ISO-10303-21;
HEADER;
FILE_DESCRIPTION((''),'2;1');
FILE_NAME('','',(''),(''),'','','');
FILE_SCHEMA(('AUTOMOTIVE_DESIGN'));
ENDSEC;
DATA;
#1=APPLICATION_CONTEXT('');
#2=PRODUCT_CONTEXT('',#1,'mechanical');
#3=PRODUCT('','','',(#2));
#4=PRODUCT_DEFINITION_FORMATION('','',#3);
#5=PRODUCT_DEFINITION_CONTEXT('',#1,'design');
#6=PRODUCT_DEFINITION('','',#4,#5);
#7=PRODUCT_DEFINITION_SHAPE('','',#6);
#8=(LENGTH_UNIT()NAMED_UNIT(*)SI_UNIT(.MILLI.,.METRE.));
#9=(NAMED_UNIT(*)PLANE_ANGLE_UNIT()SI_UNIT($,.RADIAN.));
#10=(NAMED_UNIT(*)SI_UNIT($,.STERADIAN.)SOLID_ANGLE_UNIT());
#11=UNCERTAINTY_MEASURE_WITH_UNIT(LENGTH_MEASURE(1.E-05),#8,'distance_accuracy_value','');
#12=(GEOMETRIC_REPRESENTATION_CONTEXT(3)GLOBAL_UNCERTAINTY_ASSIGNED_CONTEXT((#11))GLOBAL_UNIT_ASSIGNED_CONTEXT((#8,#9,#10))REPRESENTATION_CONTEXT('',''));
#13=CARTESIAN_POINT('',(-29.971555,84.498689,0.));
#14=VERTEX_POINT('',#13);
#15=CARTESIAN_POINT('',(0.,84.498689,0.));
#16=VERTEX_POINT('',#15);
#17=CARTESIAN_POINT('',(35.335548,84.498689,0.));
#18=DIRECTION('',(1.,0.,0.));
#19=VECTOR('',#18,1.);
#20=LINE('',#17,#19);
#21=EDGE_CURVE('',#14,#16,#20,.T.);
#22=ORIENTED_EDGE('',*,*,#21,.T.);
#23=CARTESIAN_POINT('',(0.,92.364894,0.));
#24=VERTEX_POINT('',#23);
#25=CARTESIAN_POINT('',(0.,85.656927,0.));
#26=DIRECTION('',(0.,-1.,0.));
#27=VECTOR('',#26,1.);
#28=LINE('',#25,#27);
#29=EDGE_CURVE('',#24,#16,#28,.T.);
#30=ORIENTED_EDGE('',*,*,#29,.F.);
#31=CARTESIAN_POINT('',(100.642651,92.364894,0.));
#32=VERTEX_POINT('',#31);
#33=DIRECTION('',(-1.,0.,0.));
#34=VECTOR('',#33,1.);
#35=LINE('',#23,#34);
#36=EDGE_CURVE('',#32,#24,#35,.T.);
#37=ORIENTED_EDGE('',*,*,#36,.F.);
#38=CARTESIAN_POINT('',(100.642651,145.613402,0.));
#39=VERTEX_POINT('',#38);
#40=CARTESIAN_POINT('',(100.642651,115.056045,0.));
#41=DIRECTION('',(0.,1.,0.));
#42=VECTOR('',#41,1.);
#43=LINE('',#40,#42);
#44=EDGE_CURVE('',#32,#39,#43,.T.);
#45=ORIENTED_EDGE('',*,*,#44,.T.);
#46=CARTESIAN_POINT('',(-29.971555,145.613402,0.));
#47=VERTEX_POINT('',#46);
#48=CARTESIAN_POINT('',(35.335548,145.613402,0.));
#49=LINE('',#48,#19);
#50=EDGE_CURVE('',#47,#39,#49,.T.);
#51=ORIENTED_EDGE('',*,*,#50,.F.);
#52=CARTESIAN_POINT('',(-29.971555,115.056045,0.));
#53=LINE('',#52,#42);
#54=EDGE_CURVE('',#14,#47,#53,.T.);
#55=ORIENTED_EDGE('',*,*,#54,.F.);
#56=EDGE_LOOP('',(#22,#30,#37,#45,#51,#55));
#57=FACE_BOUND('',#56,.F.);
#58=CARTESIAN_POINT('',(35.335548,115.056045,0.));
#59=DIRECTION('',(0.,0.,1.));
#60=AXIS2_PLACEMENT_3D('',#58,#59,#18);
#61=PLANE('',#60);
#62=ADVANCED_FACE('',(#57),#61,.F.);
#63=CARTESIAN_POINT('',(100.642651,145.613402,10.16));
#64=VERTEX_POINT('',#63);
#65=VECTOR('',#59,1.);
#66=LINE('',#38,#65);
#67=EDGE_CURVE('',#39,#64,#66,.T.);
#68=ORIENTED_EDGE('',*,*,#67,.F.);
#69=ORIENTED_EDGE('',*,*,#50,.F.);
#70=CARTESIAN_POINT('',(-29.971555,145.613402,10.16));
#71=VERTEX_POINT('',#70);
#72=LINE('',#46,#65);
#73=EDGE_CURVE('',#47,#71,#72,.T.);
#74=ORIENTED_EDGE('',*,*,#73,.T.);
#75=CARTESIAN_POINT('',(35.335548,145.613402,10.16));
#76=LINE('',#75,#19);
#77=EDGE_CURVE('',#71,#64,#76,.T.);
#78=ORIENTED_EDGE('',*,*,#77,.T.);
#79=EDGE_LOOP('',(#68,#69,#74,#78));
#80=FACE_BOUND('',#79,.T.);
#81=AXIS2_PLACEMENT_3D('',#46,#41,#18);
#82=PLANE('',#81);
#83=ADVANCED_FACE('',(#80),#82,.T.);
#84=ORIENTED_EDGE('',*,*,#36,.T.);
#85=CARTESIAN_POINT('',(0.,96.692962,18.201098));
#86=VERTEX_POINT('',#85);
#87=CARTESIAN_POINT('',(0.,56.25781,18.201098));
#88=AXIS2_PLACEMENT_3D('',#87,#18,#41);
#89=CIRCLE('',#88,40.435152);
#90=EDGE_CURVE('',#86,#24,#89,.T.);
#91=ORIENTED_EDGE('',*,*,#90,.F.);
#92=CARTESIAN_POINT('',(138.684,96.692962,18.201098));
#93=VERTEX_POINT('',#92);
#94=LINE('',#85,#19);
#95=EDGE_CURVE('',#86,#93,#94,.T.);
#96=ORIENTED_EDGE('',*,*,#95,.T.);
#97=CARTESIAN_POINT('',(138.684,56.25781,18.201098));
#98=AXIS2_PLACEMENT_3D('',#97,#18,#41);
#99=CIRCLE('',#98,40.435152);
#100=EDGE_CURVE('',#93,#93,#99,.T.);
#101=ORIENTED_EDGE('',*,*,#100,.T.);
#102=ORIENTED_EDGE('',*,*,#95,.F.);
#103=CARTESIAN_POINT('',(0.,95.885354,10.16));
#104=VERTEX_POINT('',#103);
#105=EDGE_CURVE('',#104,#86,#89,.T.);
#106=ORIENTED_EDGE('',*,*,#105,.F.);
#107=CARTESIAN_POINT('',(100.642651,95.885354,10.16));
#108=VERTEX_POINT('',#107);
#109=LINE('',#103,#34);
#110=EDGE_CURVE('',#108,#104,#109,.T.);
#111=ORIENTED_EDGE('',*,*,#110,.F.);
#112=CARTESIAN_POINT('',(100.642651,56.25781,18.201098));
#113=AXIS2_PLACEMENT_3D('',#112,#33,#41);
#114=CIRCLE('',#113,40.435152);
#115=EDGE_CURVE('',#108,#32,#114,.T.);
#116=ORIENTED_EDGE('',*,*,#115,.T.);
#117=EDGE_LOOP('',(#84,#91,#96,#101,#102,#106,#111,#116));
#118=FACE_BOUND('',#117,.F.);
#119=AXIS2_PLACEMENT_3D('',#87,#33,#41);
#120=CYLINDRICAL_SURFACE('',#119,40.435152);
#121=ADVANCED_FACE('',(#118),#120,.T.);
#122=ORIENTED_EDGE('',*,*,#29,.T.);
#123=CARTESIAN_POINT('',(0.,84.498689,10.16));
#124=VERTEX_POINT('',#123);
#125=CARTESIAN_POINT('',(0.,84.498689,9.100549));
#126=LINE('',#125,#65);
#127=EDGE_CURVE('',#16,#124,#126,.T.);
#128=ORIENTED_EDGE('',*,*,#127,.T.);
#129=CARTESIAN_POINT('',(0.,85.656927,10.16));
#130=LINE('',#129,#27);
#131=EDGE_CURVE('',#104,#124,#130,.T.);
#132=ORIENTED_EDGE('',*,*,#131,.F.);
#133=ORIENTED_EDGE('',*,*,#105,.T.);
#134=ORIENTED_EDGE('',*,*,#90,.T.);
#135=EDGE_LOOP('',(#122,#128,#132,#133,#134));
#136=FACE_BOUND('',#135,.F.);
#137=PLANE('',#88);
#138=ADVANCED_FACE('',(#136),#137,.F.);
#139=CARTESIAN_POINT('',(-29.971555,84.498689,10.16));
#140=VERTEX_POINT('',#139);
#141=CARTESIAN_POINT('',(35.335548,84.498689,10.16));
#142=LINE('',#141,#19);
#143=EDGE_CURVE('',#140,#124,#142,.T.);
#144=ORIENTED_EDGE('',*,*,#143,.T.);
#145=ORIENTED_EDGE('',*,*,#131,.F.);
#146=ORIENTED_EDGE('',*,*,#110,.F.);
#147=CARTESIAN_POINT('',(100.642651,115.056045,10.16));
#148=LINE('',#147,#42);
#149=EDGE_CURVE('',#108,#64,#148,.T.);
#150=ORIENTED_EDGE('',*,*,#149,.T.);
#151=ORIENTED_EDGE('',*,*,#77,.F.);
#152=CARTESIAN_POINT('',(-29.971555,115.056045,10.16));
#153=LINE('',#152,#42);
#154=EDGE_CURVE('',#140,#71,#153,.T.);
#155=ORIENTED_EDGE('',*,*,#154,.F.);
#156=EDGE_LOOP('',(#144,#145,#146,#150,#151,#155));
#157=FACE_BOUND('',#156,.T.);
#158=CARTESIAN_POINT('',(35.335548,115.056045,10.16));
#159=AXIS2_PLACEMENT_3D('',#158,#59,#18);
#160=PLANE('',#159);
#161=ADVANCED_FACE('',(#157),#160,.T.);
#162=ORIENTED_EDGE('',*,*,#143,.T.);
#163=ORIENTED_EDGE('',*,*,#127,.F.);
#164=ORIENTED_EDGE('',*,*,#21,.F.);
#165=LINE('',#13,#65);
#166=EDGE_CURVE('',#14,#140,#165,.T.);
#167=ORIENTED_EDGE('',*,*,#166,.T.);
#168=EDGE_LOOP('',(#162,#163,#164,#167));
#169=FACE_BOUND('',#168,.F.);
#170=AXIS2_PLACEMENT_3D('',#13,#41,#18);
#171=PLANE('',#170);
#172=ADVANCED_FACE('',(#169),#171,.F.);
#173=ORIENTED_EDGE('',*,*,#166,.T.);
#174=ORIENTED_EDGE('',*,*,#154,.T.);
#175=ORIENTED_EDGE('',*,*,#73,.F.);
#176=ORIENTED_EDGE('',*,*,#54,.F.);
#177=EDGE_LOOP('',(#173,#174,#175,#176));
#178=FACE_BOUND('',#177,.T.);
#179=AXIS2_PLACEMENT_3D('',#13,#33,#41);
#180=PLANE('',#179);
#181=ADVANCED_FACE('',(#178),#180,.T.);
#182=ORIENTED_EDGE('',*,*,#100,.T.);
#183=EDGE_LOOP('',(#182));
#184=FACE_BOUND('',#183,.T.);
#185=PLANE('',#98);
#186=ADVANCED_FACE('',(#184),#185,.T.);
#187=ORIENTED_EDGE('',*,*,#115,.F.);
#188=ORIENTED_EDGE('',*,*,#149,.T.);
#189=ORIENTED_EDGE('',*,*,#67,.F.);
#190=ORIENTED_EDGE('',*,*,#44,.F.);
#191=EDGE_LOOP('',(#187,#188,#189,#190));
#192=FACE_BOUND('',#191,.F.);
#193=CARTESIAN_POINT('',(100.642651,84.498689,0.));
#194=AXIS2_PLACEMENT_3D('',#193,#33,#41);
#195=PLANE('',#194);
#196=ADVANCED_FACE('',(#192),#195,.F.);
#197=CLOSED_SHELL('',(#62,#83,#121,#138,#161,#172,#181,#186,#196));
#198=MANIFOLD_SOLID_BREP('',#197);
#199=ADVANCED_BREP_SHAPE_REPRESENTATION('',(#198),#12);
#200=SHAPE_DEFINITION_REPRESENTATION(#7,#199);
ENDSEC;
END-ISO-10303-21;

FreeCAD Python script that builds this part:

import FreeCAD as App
import Part
import Sketcher

V = App.Vector
Q = App.Units.Quantity


def add_polygon(sketch, points):
    """Adds a closed chain of lines whose ends are joined by coincident constraints."""
    first, n = sketch.GeometryCount, len(points)
    for a, b in zip(points, points[1:] + points[:1]):
        sketch.addGeometry(Part.LineSegment(App.Vector(*a, 0), App.Vector(*b, 0)), False)
    for i in range(n):
        sketch.addConstraint(Sketcher.Constraint("Coincident", first + i, 2, first + (i + 1) % n, 1))

doc = App.newDocument("Part")
body = doc.addObject("PartDesign::Body", "Body")

# Sketch on YZ plane
sketch1 = body.newObject("Sketcher::SketchObject", "Sketch")
sketch1.AttachmentSupport = (doc.getObject("YZ_Plane"), [""])
sketch1.MapMode = "FlatFace"
sketch1.addGeometry(Part.Circle(V(56, 18, 0), V(0, 0, 1), 40), False)
sketch1.addConstraint([
    Sketcher.Constraint("Diameter", 0, 80.870304),
    Sketcher.Constraint("DistanceY", -1, 1, 0, 3, 18.201098),
    Sketcher.Constraint("DistanceX", -1, 1, 0, 3, 56.25781),
])
pad1 = body.newObject("PartDesign::Pad", "Pad")
pad1.Profile = sketch1
pad1.Length = Q("5.46 in")

# Sketch on XY plane
sketch2 = body.newObject("Sketcher::SketchObject", "Sketch001")
sketch2.AttachmentSupport = (doc.getObject("XY_Plane"), [""])
sketch2.MapMode = "FlatFace"
add_polygon(sketch2, [(-30, 146), (-30, 84), (101, 84), (101, 146)])  # lines 0-3
sketch2.addConstraint([
    Sketcher.Constraint("Vertical", 0),
    Sketcher.Constraint("Horizontal", 1),
    Sketcher.Constraint("Vertical", 2),
    Sketcher.Constraint("Horizontal", 3),
    Sketcher.Constraint("DistanceY", -1, 1, 2, 2, 145.613402),
    Sketcher.Constraint("DistanceX", 1, 1, 1, 2, 130.614206),
    Sketcher.Constraint("DistanceY", 0, 2, 0, 1, 61.114713),
    Sketcher.Constraint("DistanceX", -1, 1, 1, 2, 100.642651),
])
pad2 = body.newObject("PartDesign::Pad", "Pad001")
pad2.Profile = sketch2
pad2.Length = Q("0.4 in")

doc.recompute()
